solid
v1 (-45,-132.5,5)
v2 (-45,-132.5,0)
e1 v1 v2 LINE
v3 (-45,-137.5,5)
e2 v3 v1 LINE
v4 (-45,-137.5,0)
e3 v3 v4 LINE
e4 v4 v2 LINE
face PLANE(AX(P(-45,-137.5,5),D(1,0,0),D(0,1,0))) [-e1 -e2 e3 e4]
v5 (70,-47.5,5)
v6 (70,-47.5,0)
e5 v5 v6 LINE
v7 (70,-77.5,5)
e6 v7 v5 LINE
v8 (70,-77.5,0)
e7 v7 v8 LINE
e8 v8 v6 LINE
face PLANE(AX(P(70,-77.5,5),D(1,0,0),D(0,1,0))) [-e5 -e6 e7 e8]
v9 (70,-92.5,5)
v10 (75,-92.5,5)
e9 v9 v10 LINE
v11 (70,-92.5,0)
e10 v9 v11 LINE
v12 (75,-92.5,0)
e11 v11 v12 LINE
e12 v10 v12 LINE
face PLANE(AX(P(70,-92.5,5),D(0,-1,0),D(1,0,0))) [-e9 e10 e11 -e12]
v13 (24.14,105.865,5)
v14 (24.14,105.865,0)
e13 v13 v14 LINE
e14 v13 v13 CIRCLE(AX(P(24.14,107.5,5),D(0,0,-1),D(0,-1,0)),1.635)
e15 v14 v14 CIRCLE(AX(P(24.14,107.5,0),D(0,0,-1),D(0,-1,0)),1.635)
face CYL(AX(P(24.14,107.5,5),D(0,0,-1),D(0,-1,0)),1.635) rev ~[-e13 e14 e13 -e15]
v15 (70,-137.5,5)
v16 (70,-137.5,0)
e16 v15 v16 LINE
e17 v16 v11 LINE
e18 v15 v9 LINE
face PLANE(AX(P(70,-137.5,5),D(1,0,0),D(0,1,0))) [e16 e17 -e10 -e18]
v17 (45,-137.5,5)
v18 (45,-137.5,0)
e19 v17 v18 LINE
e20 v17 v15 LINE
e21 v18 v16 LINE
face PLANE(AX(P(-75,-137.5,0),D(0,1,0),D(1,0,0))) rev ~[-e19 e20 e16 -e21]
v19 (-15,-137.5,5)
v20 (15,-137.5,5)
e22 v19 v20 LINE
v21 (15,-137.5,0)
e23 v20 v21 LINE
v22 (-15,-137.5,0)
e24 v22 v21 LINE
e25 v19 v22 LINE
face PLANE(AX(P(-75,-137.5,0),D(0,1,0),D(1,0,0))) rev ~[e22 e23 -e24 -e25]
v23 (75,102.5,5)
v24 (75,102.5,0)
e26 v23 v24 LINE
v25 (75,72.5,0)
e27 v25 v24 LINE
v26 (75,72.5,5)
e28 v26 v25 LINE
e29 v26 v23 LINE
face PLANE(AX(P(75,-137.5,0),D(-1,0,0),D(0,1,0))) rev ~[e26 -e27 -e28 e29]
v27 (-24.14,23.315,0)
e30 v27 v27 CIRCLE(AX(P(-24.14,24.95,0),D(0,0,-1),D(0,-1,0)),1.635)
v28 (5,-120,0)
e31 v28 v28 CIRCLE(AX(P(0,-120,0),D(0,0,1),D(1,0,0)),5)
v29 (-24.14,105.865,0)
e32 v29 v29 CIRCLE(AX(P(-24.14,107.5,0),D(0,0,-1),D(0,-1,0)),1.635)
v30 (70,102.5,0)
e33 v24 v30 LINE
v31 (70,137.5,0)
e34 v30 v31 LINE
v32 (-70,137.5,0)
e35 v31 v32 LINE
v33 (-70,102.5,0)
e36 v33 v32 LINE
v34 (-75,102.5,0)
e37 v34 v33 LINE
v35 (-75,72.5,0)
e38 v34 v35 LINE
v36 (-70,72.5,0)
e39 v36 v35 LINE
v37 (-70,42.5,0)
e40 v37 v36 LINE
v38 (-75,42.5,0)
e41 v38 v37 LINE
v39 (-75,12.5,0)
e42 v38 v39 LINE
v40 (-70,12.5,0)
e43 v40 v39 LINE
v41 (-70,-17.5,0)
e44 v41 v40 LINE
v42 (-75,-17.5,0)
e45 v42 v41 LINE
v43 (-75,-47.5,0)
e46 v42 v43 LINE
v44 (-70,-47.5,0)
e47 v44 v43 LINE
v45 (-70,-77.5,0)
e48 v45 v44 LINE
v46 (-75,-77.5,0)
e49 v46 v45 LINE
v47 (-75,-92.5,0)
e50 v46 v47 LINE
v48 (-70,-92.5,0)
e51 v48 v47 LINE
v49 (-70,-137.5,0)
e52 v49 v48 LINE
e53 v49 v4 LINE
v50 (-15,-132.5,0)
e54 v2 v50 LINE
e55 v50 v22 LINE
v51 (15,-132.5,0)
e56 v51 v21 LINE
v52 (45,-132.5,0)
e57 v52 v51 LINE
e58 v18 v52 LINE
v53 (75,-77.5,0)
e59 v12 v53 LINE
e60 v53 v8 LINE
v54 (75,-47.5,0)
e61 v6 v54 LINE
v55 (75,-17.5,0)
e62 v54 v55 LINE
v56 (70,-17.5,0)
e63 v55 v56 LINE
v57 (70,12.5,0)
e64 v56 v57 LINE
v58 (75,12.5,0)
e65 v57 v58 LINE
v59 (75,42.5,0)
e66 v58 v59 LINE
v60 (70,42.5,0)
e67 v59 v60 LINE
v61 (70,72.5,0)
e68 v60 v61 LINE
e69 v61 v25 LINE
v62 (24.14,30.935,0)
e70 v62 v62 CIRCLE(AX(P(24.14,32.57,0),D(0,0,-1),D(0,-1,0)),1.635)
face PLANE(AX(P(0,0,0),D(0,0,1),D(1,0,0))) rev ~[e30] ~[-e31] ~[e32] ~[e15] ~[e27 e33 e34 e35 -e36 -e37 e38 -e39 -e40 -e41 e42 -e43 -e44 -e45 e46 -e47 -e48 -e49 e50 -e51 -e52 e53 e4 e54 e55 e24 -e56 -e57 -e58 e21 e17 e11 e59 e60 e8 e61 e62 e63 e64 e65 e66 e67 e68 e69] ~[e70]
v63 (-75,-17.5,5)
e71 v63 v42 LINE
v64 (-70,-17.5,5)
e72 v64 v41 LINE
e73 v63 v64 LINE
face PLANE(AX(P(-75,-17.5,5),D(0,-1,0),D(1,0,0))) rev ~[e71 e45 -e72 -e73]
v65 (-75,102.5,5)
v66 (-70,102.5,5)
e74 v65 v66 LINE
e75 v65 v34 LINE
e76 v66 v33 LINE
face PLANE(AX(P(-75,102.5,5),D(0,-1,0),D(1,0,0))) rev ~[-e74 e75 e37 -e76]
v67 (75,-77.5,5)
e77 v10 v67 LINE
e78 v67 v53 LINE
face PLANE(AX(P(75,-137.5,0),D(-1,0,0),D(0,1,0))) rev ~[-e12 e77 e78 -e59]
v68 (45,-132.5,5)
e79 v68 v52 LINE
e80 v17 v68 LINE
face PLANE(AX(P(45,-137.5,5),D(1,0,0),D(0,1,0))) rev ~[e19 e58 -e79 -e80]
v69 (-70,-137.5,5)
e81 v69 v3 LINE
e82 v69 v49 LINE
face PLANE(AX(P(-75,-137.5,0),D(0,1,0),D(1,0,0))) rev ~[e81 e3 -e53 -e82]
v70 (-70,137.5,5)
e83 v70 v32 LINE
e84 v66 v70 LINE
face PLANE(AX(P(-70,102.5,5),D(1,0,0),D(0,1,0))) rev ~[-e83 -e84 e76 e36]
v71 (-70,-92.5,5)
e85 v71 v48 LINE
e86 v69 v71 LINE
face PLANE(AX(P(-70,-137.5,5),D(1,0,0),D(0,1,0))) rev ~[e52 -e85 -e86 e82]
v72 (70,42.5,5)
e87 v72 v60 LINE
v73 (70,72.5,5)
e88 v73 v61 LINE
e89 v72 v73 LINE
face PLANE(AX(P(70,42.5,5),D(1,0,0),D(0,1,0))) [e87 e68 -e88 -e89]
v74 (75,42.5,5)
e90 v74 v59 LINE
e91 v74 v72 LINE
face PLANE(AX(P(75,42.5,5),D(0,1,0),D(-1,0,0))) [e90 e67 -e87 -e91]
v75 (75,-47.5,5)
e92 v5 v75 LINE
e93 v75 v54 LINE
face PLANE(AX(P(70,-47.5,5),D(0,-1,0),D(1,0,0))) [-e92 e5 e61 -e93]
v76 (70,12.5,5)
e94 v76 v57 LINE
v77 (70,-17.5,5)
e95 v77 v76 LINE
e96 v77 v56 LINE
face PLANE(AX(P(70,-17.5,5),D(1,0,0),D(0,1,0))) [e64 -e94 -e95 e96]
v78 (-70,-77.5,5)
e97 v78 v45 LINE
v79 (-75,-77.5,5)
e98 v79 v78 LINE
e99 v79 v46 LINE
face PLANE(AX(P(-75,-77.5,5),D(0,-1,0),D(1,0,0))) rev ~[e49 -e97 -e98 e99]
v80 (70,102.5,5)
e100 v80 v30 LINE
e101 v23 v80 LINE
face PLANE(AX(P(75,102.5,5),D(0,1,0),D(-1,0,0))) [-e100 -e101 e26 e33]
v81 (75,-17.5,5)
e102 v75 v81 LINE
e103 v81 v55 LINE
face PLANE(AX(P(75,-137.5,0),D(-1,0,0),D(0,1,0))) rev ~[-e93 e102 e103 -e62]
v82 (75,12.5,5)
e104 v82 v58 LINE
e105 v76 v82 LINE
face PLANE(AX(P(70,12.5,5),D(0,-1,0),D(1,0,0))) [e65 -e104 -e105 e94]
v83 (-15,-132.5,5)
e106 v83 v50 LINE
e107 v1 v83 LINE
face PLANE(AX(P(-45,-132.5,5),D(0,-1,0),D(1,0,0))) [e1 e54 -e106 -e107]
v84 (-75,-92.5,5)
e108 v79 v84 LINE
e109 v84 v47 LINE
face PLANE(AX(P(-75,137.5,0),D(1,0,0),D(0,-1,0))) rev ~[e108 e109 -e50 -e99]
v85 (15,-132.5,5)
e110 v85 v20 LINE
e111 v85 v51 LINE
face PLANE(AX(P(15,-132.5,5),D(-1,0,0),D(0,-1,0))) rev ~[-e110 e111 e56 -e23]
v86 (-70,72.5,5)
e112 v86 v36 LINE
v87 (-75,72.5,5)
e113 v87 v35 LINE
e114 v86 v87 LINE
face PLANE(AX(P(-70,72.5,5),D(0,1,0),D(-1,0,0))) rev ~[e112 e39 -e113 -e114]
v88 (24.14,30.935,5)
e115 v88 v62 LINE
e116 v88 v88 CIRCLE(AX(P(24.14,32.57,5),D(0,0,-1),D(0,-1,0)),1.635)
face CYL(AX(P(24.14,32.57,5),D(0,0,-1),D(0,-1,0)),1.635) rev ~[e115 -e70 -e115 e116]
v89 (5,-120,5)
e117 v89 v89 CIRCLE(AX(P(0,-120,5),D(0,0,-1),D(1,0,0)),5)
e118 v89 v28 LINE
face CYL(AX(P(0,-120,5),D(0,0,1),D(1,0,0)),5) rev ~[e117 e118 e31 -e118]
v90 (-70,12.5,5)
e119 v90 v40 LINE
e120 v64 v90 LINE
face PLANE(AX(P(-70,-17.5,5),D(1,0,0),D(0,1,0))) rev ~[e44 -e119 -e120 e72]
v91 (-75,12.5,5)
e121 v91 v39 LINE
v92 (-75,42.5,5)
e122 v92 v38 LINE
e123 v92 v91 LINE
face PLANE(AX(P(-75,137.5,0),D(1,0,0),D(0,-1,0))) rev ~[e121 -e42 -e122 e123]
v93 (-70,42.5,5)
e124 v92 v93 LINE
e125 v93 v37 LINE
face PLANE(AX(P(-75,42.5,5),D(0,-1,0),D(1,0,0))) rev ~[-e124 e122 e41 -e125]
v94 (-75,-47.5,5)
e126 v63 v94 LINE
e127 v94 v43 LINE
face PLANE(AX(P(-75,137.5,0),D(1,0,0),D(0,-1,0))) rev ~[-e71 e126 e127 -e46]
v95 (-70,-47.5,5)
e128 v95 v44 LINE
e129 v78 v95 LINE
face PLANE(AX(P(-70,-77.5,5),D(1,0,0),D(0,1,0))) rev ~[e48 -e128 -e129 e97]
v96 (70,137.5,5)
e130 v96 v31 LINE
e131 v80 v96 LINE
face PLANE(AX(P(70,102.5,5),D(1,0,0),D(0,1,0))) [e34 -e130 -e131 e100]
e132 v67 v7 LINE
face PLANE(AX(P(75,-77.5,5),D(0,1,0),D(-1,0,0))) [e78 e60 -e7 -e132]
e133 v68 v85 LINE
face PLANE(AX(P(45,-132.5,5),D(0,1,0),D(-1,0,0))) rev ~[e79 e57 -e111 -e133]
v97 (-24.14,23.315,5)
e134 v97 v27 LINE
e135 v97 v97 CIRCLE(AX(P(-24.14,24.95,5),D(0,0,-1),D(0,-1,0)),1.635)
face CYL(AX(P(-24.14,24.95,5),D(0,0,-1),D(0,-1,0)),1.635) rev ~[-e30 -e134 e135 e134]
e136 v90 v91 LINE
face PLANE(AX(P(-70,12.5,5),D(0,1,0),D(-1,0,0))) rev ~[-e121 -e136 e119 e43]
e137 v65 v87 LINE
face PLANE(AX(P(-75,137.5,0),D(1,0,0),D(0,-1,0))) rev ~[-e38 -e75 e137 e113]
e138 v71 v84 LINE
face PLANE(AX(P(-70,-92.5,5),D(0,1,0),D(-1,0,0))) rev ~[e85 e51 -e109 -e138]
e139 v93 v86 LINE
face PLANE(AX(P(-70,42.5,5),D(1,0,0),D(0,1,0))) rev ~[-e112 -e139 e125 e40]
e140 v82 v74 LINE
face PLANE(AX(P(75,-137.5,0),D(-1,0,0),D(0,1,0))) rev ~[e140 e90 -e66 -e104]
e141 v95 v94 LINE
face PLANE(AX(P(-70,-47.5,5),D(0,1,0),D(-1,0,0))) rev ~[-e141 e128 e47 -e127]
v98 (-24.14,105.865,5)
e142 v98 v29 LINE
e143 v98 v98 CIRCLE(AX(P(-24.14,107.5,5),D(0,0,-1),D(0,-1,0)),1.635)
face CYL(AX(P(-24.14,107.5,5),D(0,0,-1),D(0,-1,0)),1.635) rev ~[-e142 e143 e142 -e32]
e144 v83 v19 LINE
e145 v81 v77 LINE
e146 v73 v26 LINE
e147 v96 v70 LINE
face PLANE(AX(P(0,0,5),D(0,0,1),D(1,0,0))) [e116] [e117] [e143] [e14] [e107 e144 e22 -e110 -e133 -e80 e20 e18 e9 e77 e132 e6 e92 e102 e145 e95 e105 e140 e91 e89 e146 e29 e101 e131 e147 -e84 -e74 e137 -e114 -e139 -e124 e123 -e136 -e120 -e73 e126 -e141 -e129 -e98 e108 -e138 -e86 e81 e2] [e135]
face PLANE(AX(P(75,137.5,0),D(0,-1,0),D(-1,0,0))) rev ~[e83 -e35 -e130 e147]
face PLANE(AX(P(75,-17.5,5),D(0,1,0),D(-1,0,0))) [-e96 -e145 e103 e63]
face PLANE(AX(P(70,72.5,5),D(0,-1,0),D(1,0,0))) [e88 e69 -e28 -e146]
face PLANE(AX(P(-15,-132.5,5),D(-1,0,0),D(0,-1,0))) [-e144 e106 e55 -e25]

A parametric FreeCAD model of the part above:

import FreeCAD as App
import Part
import Sketcher


def add_polygon(sketch, points):
    """Adds a closed chain of lines whose ends are joined by coincident constraints."""
    first, n = sketch.GeometryCount, len(points)
    for a, b in zip(points, points[1:] + points[:1]):
        sketch.addGeometry(Part.LineSegment(App.Vector(*a, 0), App.Vector(*b, 0)), False)
    for i in range(n):
        sketch.addConstraint(Sketcher.Constraint("Coincident", first + i, 2, first + (i + 1) % n, 1))

doc = App.newDocument("Part")
body = doc.addObject("PartDesign::Body", "Body")

sketch1 = body.newObject("Sketcher::SketchObject", "Sketch")
sketch1.AttachmentSupport = (doc.getObject("XY_Plane"), [""])
sketch1.MapMode = "FlatFace"
add_polygon(sketch1, [(-75, 138), (-75, -138), (75, -138), (75, 138)])
sketch1.addConstraint([
    Sketcher.Constraint("Vertical", 0),
    Sketcher.Constraint("Horizontal", 1),
    Sketcher.Constraint("Vertical", 2),
    Sketcher.Constraint("Horizontal", 3),
    Sketcher.Constraint("Symmetric", 0, 2, 2, 2, -1, 1),
    Sketcher.Constraint("DistanceX", 1, 1, 1, 2, 150.0),
    Sketcher.Constraint("DistanceY", 0, 2, 0, 1, 275.0),
])
pad1 = body.newObject("PartDesign::Pad", "Pad")
pad1.Profile = sketch1
pad1.Length = 5

sketch2 = body.newObject("Sketcher::SketchObject", "Sketch001")
sketch2.AttachmentSupport = (doc.getObject("XY_Plane"), [""])
sketch2.MapMode = "FlatFace"
sketch2.AttachmentOffset = App.Placement(App.Vector(0, 0, 5), App.Rotation())
sketch2.addGeometry(Part.Circle(App.Vector(0, -120, 0), App.Vector(0, 0, 1), 5), False)
add_polygon(sketch2, [(-70, 138), (-75, 138), (-75, 102), (-70, 102)])
add_polygon(sketch2, [(75, 138), (70, 138), (70, 102), (75, 102)])
add_polygon(sketch2, [(-70, 72), (-75, 72), (-75, 42), (-70, 42)])
add_polygon(sketch2, [(-70, 12), (-75, 12), (-75, -18), (-70, -18)])
add_polygon(sketch2, [(75, 42), (75, 72), (70, 72), (70, 42)])
add_polygon(sketch2, [(-70, -48), (-75, -48), (-75, -78), (-70, -78)])
add_polygon(sketch2, [(75, -18), (75, 12), (70, 12), (70, -18)])
add_polygon(sketch2, [(-70, -92), (-75, -92), (-75, -138), (-70, -138)])
add_polygon(sketch2, [(75, -78), (75, -48), (70, -48), (70, -78)])
add_polygon(sketch2, [(75, -138), (75, -92), (70, -92), (70, -138)])
add_polygon(sketch2, [(-45, -132), (-45, -138), (-15, -138), (-15, -132)])
add_polygon(sketch2, [(15, -138), (45, -138), (45, -132), (15, -132)])
sketch2.addConstraint([
    Sketcher.Constraint("Horizontal", 1),
    Sketcher.Constraint("Vertical", 2),
    Sketcher.Constraint("Horizontal", 3),
    Sketcher.Constraint("Vertical", 4),
    Sketcher.Constraint("Horizontal", 5),
    Sketcher.Constraint("Vertical", 6),
    Sketcher.Constraint("Horizontal", 7),
    Sketcher.Constraint("Vertical", 8),
    Sketcher.Constraint("Horizontal", 9),
    Sketcher.Constraint("Vertical", 10),
    Sketcher.Constraint("Horizontal", 11),
    Sketcher.Constraint("Vertical", 12),
    Sketcher.Constraint("Horizontal", 13),
    Sketcher.Constraint("Vertical", 14),
    Sketcher.Constraint("Horizontal", 15),
    Sketcher.Constraint("Vertical", 16),
    Sketcher.Constraint("Vertical", 17),
    Sketcher.Constraint("Horizontal", 18),
    Sketcher.Constraint("Vertical", 19),
    Sketcher.Constraint("Horizontal", 20),
    Sketcher.Constraint("Horizontal", 21),
    Sketcher.Constraint("Vertical", 22),
    Sketcher.Constraint("Horizontal", 23),
    Sketcher.Constraint("Vertical", 24),
    Sketcher.Constraint("Vertical", 25),
    Sketcher.Constraint("Horizontal", 26),
    Sketcher.Constraint("Vertical", 27),
    Sketcher.Constraint("Horizontal", 28),
    Sketcher.Constraint("Horizontal", 29),
    Sketcher.Constraint("Vertical", 30),
    Sketcher.Constraint("Horizontal", 31),
    Sketcher.Constraint("Vertical", 32),
    Sketcher.Constraint("Vertical", 33),
    Sketcher.Constraint("Horizontal", 34),
    Sketcher.Constraint("Vertical", 35),
    Sketcher.Constraint("Horizontal", 36),
    Sketcher.Constraint("Vertical", 37),
    Sketcher.Constraint("Horizontal", 38),
    Sketcher.Constraint("Vertical", 39),
    Sketcher.Constraint("Horizontal", 40),
    Sketcher.Constraint("Vertical", 41),
    Sketcher.Constraint("Horizontal", 42),
    Sketcher.Constraint("Vertical", 43),
    Sketcher.Constraint("Horizontal", 44),
    Sketcher.Constraint("Horizontal", 45),
    Sketcher.Constraint("Vertical", 46),
    Sketcher.Constraint("Horizontal", 47),
    Sketcher.Constraint("Vertical", 48),
    Sketcher.Constraint("Symmetric", 8, 2, 30, 2, -1, 1),
    Sketcher.Constraint("Symmetric", 4, 2, 39, 2, -1, 1),
    Sketcher.Constraint("Symmetric", 4, 2, 5, 2, -2),
    Sketcher.Constraint("Symmetric", 2, 2, 7, 2, -2),
    Sketcher.Constraint("Symmetric", 9, 2, 17, 2, -2),
    Sketcher.Constraint("Symmetric", 11, 2, 19, 2, -2),
    Sketcher.Constraint("Symmetric", 13, 2, 25, 2, -2),
    Sketcher.Constraint("Symmetric", 15, 2, 27, 2, -2),
    Sketcher.Constraint("Symmetric", 21, 2, 33, 2, -2),
    Sketcher.Constraint("Symmetric", 23, 2, 35, 2, -2),
    Sketcher.Constraint("Symmetric", 29, 2, 37, 2, -2),
    Sketcher.Constraint("Symmetric", 41, 2, 45, 2, -2),
    Sketcher.Constraint("Symmetric", 43, 2, 47, 2, -2),
    Sketcher.Constraint("PointOnObject", 0, 3, -2),
    Sketcher.Constraint("Horizontal", 40, 2, 41, 2),
    Sketcher.Constraint("Vertical", 2, 2, 9, 2),
    Sketcher.Constraint("Vertical", 4, 2, 11, 2),
    Sketcher.Constraint("Vertical", 10, 2, 13, 2),
    Sketcher.Constraint("Vertical", 12, 2, 15, 2),
    Sketcher.Constraint("Vertical", 14, 2, 21, 2),
    Sketcher.Constraint("Vertical", 16, 2, 23, 2),
    Sketcher.Constraint("Vertical", 24, 2, 31, 2),
    Sketcher.Constraint("Equal", 47, 10),
    Sketcher.Constraint("Equal", 12, 14),
    Sketcher.Constraint("Equal", 19, 22),
    Sketcher.Constraint("Equal", 40, 41),
    Sketcher.Constraint("Diameter", 0, 10.0),
    Sketcher.Constraint("DistanceX", 1, 2, 1, 1, 5.0),
    Sketcher.Constraint("DistanceX", 42, 1, 42, 2, 30.0),
    Sketcher.Constraint("DistanceY", 30, 2, 30, 1, 45.0),
    Sketcher.Constraint("DistanceY", 0, 3, -1, 1, 120.0),
    Sketcher.Constraint("DistanceX", 41, 2, -1, 1, 45.0),
    Sketcher.Constraint("DistanceY", 9, 2, 2, 2, 30.0),
    Sketcher.Constraint("DistanceY", 13, 2, 10, 2, 30.0),
    Sketcher.Constraint("DistanceY", 21, 2, 14, 2, 30.0),
    Sketcher.Constraint("DistanceY", 29, 2, 22, 2, 15.0),
    Sketcher.Constraint("DistanceX", 30, 2, 41, 2, 30.0),
    Sketcher.Constraint("DistanceY", 2, 2, 2, 1, 35.0),
])
pocket1 = body.newObject("PartDesign::Pocket", "Pocket")
pocket1.Profile = sketch2
pocket1.Length = 8

sketch3 = body.newObject("Sketcher::SketchObject", "Sketch002")
sketch3.AttachmentSupport = (doc.getObject("XY_Plane"), [""])
sketch3.MapMode = "FlatFace"
sketch3.AttachmentOffset = App.Placement(App.Vector(0, 0, 5), App.Rotation())
sketch3.addGeometry([
    Part.Circle(App.Vector(-24.1, 24.9, 0), App.Vector(0, 0, 1), 1.6),
    Part.Circle(App.Vector(24.1, 32.6, 0), App.Vector(0, 0, 1), 1.6),
    Part.Circle(App.Vector(24.1, 107.5, 0), App.Vector(0, 0, 1), 1.6),
    Part.Circle(App.Vector(-24.1, 107.5, 0), App.Vector(0, 0, 1), 1.6),
], False)
sketch3.addConstraint([
    Sketcher.Constraint("Equal", 0, 1),
    Sketcher.Constraint("Equal", 1, 2),
    Sketcher.Constraint("Equal", 2, 3),
    Sketcher.Constraint("Symmetric", 2, 3, 3, 3, -2),
    Sketcher.Constraint("Vertical", 1, 3, 2, 3),
    Sketcher.Constraint("Vertical", 0, 3, 3, 3),
    Sketcher.Constraint("Diameter", 0, 3.27),
    Sketcher.Constraint("DistanceY", -1, 1, 2, 3, 107.5),
    Sketcher.Constraint("DistanceX", 0, 3, -1, 1, 24.14),
    Sketcher.Constraint("DistanceY", -1, 1, 0, 3, 24.95),
    Sketcher.Constraint("DistanceY", -1, 1, 1, 3, 32.57),
])
doc.recompute()
hole = body.newObject("PartDesign::Hole", "Hole")
hole.Profile = sketch3
hole.ThreadType = "None"
hole.Diameter = 3.27
hole.DepthType = "ThroughAll"

doc.recompute()
